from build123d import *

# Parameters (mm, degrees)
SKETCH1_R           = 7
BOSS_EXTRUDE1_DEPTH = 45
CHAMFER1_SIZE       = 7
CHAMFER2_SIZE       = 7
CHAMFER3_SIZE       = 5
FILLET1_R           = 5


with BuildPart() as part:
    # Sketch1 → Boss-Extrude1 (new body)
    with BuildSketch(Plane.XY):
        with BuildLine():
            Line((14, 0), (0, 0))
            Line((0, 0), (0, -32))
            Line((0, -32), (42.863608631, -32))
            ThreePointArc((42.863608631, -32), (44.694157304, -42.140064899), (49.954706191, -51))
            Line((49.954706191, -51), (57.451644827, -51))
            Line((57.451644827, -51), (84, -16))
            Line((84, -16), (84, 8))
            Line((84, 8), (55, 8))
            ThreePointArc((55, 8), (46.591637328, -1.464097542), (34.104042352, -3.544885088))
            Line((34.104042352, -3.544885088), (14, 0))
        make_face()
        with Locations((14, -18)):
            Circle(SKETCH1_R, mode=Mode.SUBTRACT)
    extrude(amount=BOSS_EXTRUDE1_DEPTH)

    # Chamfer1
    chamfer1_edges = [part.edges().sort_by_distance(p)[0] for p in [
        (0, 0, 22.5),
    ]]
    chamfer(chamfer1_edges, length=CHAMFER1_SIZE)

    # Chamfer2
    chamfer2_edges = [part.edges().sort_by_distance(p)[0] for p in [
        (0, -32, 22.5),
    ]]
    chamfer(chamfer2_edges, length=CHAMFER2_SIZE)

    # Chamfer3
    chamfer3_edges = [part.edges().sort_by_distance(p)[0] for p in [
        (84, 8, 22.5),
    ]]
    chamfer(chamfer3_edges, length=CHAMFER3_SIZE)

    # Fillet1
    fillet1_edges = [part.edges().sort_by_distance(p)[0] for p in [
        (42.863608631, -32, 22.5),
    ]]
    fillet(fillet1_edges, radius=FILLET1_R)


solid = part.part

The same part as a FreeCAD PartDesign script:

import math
import FreeCAD as App
import Part
import Sketcher
Q = App.Units.Quantity


def edges_at(feature, points):
    """Names of the edges that pass closest to the given points."""
    edges = feature.Shape.Edges
    near = lambda p: min(range(len(edges)), key=lambda i: edges[i].distToShape(Part.Vertex(*p))[0])
    return sorted({f"Edge{near(p) + 1}" for p in points})

doc = App.newDocument("Part")
params = doc.addObject("Spreadsheet::Sheet", "Params")
for row, (alias, value) in enumerate([
    ("sketch1_diameter", "14 mm"),
    ("sketch1_radius", "29 mm"),
    ("sketch1_radius2", "19 mm"),
    ("sketch1_width", "14 mm"),
    ("sketch1_width2", "29 mm"),
    ("pad1_length", "45 mm"),
    ("chamfer_size", "7 mm"),
    ("chamfer2_size", "7 mm"),
    ("chamfer3_size", "5 mm"),
    ("fillet_radius", "5 mm"),
], start=1):
    params.set(f"A{row}", alias)
    params.set(f"B{row}", "=" + value)
    params.setAlias(f"B{row}", alias)

body = doc.addObject("PartDesign::Body", "Body")

# Sketch on XY plane
sketch1 = body.newObject("Sketcher::SketchObject", "Sketch")
sketch1.AttachmentSupport = (doc.getObject("XY_Plane"), [""])
sketch1.MapMode = "FlatFace"
sketch1.addGeometry([
    Part.LineSegment(App.Vector(14, 0, 0), App.Vector(0, 0, 0)),  # 0
    Part.LineSegment(App.Vector(0, 0, 0), App.Vector(0, -32, 0)),  # 1
    Part.LineSegment(App.Vector(0, -32, 0), App.Vector(43, -32, 0)),  # 2
    Part.ArcOfCircle(Part.Circle(App.Vector(72, -32, 0), App.Vector(0, 0, 1), 29), math.radians(-180), math.radians(-139)),  # 3
    Part.LineSegment(App.Vector(50, -51, 0), App.Vector(57, -51, 0)),  # 4
    Part.LineSegment(App.Vector(57, -51, 0), App.Vector(84, -16, 0)),  # 5
    Part.LineSegment(App.Vector(84, -16, 0), App.Vector(84, 8, 0)),  # 6
    Part.LineSegment(App.Vector(84, 8, 0), App.Vector(55, 8, 0)),  # 7
    Part.ArcOfCircle(Part.Circle(App.Vector(37, 15, 0), App.Vector(0, 0, 1), 19), math.radians(-100), math.radians(-22)),  # 8
    Part.LineSegment(App.Vector(34, -4, 0), App.Vector(14, 0, 0)),  # 9
    Part.Circle(App.Vector(14, -18, 0), App.Vector(0, 0, 1), 7),  # 10
], False)
sketch1.addConstraint([
    Sketcher.Constraint("Coincident", 0, 2, 1, 1),
    Sketcher.Constraint("Coincident", 1, 2, 2, 1),
    Sketcher.Constraint("Coincident", 2, 2, 3, 1),
    Sketcher.Constraint("Coincident", 3, 2, 4, 1),
    Sketcher.Constraint("Coincident", 4, 2, 5, 1),
    Sketcher.Constraint("Coincident", 5, 2, 6, 1),
    Sketcher.Constraint("Coincident", 6, 2, 7, 1),
    Sketcher.Constraint("Coincident", 7, 2, 8, 2),
    Sketcher.Constraint("Tangent", 8, 1, 9, 1),
    Sketcher.Constraint("Coincident", 9, 2, 0, 1),
    Sketcher.Constraint("Horizontal", 0),
    Sketcher.Constraint("Vertical", 1),
    Sketcher.Constraint("Horizontal", 2),
    Sketcher.Constraint("Horizontal", 4),
    Sketcher.Constraint("Vertical", 6),
    Sketcher.Constraint("Horizontal", 7),
    Sketcher.Constraint("Coincident", 0, 2, -1, 1),
    Sketcher.Constraint("Horizontal", 3, 3, 1, 2),
    Sketcher.Constraint("Vertical", 10, 3, 9, 2),
    Sketcher.Constraint("Diameter", 10, Q("14 mm")),
    Sketcher.Constraint("Radius", 3, Q("29 mm")),
    Sketcher.Constraint("Radius", 8, Q("19 mm")),
    Sketcher.Constraint("DistanceX", 0, 2, 0, 1, Q("14 mm")),
    Sketcher.Constraint("DistanceX", 7, 2, 7, 1, Q("29 mm")),
    Sketcher.Constraint("DistanceY", 1, 2, 1, 1, Q("32 mm")),
    Sketcher.Constraint("DistanceY", 6, 1, 6, 2, Q("24 mm")),
    Sketcher.Constraint("Angle", 9, Q("170 deg")),
    Sketcher.Constraint("DistanceY", 10, 3, -1, 1, Q("18 mm")),
    Sketcher.Constraint("DistanceY", 3, 2, -1, 1, Q("51 mm")),
    Sketcher.Constraint("DistanceX", -1, 1, 5, 2, Q("84 mm")),
    Sketcher.Constraint("DistanceY", 5, 2, -1, 1, Q("16 mm")),
    Sketcher.Constraint("DistanceX", 2, 1, 2, 2, Q("42.863609 mm")),
    Sketcher.Constraint("DistanceX", 4, 1, 4, 2, Q("7.496939 mm")),
])
sketch1.setExpression("Constraints[19]", "Params.sketch1_diameter")
sketch1.setExpression("Constraints[20]", "Params.sketch1_radius")
sketch1.setExpression("Constraints[21]", "Params.sketch1_radius2")
sketch1.setExpression("Constraints[22]", "Params.sketch1_width")
sketch1.setExpression("Constraints[23]", "Params.sketch1_width2")
pad1 = body.newObject("PartDesign::Pad", "Pad")
pad1.Profile = sketch1
pad1.setExpression("Length", "Params.pad1_length")
doc.recompute()

chamfer = body.newObject("PartDesign::Chamfer", "Chamfer")
chamfer.Base = (pad1, edges_at(pad1, [(0, 0, 22.5)]))
chamfer.setExpression("Size", "Params.chamfer_size")
doc.recompute()

chamfer2 = body.newObject("PartDesign::Chamfer", "Chamfer001")
chamfer2.Base = (chamfer, edges_at(chamfer, [(0, -32, 22.5)]))
chamfer2.setExpression("Size", "Params.chamfer2_size")
doc.recompute()

chamfer3 = body.newObject("PartDesign::Chamfer", "Chamfer002")
chamfer3.Base = (chamfer2, edges_at(chamfer2, [(84, 8, 22.5)]))
chamfer3.setExpression("Size", "Params.chamfer3_size")
doc.recompute()

fillet = body.newObject("PartDesign::Fillet", "Fillet")
fillet.Base = (chamfer3, edges_at(chamfer3, [(42.864, -32, 22.5)]))
fillet.setExpression("Radius", "Params.fillet_radius")

doc.recompute()
